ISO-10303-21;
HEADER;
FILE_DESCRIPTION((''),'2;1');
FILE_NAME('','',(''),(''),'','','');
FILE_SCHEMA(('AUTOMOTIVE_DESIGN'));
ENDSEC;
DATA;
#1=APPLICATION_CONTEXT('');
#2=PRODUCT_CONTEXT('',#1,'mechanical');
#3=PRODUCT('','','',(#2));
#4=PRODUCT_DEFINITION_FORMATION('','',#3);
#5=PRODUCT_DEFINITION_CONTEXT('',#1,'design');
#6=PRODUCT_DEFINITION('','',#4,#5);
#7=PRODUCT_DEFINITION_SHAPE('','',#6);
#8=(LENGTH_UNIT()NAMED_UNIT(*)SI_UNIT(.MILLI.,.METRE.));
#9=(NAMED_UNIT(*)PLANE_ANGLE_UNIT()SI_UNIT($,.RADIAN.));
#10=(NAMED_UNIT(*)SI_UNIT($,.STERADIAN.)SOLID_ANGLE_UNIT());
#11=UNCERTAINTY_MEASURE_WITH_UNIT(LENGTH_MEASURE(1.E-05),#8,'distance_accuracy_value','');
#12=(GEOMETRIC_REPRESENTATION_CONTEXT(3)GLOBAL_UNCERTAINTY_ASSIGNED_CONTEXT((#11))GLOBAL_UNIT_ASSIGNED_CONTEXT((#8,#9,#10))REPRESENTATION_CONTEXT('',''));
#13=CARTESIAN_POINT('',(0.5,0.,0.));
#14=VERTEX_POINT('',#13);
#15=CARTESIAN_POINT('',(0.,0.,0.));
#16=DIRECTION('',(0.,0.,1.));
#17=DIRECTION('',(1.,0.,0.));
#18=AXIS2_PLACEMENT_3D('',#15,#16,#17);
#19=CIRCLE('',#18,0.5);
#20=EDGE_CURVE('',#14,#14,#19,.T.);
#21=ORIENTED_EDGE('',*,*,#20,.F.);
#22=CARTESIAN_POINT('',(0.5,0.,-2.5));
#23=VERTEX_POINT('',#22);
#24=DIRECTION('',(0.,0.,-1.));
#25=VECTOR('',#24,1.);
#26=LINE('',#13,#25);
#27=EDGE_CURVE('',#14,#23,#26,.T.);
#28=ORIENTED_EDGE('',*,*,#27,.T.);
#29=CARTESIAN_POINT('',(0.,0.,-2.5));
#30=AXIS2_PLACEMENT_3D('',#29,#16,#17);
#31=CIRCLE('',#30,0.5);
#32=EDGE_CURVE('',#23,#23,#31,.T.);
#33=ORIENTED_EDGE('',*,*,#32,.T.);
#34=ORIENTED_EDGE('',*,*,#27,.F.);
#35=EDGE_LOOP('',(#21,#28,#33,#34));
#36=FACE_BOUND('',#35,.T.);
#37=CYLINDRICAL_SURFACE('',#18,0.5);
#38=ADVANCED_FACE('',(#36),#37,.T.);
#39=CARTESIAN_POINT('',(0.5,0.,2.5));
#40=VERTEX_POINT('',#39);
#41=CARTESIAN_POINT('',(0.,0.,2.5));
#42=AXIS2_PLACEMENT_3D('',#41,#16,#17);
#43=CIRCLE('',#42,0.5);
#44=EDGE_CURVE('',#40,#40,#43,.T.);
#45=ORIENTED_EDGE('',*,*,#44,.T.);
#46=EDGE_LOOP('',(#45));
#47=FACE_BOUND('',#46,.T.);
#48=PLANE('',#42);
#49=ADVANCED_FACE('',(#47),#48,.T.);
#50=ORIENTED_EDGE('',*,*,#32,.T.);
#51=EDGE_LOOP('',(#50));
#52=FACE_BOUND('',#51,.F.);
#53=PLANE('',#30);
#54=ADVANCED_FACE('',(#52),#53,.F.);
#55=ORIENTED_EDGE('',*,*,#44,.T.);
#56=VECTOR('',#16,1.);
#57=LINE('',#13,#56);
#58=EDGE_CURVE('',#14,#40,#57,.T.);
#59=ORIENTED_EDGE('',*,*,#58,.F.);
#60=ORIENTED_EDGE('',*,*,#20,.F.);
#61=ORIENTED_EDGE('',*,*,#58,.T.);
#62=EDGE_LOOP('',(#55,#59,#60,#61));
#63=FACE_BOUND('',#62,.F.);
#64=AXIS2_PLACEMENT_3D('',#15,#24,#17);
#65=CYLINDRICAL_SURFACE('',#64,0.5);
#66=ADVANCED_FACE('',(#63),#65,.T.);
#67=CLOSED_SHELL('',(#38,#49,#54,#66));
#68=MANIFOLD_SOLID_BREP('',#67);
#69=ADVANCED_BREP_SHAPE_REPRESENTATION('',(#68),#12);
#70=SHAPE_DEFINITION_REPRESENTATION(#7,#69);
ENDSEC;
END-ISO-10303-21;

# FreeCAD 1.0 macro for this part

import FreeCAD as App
import Part
import Sketcher
from FreeCAD import Vector
Q = App.Units.Quantity

doc = App.newDocument("Part")
body = doc.addObject("PartDesign::Body", "Body")

# Sketch on XY plane
sketch1 = body.newObject("Sketcher::SketchObject", "Sketch")
sketch1.AttachmentSupport = (doc.getObject("XY_Plane"), [""])
sketch1.MapMode = "FlatFace"
sketch1.addGeometry(Part.Circle(Vector(0, 0, 0), Vector(0, 0, 1), 0.5), False)
sketch1.addConstraint([
    Sketcher.Constraint("Coincident", 0, 3, -1, 1),
    Sketcher.Constraint("Diameter", 0, Q("1 mm")),
])
pad1 = body.newObject("PartDesign::Pad", "Pad")
pad1.Profile = sketch1
pad1.Length = 5
pad1.Midplane = True

doc.recompute()
